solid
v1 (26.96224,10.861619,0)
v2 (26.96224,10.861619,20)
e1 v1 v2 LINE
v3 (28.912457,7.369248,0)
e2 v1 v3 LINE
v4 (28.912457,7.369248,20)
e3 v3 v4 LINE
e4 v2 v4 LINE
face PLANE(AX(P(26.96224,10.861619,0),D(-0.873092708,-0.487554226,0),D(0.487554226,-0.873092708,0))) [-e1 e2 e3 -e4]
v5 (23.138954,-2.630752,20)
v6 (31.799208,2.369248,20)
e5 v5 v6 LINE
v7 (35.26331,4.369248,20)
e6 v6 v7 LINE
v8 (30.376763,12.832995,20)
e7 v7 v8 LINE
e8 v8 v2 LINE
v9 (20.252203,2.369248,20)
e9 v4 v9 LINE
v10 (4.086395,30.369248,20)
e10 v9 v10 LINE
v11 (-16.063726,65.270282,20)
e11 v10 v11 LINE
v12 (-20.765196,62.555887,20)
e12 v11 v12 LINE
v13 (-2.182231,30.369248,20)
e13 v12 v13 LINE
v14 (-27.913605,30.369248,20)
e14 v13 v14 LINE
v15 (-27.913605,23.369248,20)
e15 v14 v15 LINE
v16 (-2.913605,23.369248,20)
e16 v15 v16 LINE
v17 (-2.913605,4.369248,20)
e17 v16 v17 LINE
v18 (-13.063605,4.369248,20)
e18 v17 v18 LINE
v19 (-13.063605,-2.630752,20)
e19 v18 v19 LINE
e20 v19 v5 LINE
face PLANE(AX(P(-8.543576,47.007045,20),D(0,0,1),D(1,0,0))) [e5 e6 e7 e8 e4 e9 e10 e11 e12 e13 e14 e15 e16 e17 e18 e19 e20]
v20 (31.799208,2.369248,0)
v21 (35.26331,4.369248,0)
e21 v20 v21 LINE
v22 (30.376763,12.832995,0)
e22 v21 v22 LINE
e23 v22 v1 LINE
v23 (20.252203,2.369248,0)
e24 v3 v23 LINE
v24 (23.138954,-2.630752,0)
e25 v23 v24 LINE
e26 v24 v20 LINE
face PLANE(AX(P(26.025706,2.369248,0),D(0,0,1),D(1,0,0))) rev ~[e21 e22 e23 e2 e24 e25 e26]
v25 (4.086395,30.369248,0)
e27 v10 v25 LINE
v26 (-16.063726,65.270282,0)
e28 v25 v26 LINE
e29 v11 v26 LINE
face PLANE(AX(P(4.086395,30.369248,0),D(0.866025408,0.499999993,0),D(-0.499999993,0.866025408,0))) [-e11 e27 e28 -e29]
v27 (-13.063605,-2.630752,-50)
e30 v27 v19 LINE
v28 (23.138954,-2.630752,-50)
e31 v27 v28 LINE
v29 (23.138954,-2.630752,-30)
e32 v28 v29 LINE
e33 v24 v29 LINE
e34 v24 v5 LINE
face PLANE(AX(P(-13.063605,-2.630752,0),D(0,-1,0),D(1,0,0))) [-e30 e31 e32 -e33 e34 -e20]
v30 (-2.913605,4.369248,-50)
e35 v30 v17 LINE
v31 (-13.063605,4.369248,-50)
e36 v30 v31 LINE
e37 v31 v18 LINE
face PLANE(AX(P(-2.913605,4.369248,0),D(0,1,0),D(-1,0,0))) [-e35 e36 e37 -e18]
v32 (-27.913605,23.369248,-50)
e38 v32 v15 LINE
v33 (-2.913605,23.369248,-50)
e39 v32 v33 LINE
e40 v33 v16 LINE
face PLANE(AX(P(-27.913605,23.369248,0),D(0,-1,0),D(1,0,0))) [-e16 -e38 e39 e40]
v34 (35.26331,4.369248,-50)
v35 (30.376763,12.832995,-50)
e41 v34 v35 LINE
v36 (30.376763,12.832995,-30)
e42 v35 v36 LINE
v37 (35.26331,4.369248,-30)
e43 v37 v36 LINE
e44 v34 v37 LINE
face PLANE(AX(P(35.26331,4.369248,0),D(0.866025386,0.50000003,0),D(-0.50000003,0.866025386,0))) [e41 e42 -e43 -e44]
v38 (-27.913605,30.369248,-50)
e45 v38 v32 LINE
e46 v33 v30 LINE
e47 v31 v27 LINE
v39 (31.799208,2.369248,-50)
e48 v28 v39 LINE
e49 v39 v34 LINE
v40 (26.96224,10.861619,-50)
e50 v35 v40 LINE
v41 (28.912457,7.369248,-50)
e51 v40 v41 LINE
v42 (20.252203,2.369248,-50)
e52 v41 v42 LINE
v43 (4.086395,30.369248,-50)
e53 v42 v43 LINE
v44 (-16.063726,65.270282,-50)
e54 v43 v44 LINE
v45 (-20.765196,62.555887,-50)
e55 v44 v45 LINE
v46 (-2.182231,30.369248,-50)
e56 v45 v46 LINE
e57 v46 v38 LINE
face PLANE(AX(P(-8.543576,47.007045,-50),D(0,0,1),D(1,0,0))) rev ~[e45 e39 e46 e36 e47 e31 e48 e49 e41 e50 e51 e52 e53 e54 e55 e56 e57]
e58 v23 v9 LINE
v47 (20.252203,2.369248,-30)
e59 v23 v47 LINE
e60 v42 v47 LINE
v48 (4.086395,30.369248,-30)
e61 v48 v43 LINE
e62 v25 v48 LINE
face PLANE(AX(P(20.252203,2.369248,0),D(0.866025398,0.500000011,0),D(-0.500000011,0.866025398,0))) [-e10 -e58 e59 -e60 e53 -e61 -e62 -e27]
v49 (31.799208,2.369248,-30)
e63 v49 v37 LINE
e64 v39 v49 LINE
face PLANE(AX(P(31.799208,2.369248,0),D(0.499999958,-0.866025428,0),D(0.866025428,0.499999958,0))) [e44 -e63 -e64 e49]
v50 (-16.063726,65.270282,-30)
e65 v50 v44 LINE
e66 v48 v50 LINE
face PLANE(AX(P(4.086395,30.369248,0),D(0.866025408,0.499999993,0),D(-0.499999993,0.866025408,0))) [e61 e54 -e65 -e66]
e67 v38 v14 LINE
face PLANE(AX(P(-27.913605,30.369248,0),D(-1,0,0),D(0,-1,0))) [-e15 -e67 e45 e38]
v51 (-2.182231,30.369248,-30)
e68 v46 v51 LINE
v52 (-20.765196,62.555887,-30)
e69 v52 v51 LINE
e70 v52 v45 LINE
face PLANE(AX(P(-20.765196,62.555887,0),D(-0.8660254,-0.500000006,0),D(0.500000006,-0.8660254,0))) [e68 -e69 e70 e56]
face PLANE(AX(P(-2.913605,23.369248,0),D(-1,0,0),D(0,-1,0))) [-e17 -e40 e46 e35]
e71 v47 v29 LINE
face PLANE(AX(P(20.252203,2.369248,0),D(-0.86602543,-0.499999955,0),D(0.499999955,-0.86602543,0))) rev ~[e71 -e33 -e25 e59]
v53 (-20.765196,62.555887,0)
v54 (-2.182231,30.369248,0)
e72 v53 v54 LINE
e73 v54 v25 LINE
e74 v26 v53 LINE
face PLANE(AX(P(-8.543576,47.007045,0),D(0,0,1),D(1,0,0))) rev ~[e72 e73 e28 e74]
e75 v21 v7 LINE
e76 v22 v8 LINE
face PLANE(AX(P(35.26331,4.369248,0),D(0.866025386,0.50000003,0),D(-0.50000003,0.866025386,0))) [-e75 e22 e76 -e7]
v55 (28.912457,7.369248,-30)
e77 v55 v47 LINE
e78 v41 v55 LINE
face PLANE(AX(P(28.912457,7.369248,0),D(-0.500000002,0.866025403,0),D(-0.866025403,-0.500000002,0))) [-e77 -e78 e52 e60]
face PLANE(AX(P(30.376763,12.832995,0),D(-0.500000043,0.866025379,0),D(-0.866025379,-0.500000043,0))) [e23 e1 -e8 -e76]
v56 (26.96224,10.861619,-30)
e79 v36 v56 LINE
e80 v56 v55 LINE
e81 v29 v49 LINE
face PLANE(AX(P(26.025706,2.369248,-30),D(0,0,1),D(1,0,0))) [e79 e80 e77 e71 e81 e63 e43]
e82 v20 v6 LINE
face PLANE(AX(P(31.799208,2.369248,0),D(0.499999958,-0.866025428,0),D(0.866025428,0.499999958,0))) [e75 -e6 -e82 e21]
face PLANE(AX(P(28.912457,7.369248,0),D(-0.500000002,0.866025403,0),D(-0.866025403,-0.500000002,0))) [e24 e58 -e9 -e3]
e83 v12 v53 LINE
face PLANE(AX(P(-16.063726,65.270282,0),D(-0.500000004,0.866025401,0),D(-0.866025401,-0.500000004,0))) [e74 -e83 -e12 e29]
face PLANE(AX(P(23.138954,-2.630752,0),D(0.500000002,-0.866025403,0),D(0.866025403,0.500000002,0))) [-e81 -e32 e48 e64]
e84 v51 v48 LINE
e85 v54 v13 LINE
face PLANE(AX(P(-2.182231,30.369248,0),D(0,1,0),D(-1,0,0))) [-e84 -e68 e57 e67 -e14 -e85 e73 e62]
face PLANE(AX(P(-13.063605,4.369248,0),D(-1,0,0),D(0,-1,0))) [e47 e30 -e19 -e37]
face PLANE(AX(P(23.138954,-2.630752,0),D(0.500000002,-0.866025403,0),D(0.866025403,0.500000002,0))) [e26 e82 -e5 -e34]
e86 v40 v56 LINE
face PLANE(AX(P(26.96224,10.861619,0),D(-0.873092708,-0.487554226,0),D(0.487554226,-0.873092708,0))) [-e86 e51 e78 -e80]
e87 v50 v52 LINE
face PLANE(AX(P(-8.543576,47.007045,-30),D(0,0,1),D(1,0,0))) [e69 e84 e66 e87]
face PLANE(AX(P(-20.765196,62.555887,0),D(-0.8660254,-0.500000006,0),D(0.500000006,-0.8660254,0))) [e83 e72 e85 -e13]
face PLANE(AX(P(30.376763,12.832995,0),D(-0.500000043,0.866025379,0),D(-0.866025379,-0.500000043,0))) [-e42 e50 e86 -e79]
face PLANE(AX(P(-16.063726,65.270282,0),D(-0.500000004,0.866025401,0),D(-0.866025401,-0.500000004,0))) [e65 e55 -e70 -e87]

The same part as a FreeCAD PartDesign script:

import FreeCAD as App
import Part
import Sketcher
from FreeCAD import Vector
Q = App.Units.Quantity

doc = App.newDocument("Part")
params = doc.addObject("Spreadsheet::Sheet", "Params")
for row, (alias, value) in enumerate([
    ("sketch1_width", "25 mm"),
    ("sketch1_height", "7 mm"),
    ("sketch1_height2", "19 mm"),
    ("sketch1_length", "10 mm"),
    ("sketch1_width2", "10.15 mm"),
    ("pad1_length", "20 mm"),
    ("sketch2_width", "25 mm"),
    ("sketch2_height", "7 mm"),
    ("sketch2_height2", "19 mm"),
    ("sketch2_length", "10 mm"),
    ("sketch2_width2", "10.15 mm"),
    ("pad2_length", "50 mm"),
    ("sketch3_length", "10 mm"),
    ("sketch3_length2", "4 mm"),
    ("pocket1_length", "30 mm"),
], start=1):
    params.set(f"A{row}", alias)
    params.set(f"B{row}", "=" + value)
    params.setAlias(f"B{row}", alias)

body = doc.addObject("PartDesign::Body", "Body")

# Sketch on XY plane
sketch1 = doc.addObject("Sketcher::SketchObject", "Sketch")
body.addObject(sketch1)
sketch1.AttachmentSupport = (doc.XY_Plane, [""])
sketch1.MapMode = "FlatFace"
sketch1.addGeometry([
    Part.LineSegment(Vector(-20.8, 62.6, 0), Vector(-2.2, 30.4, 0)),  # 0
    Part.LineSegment(Vector(-2.2, 30.4, 0), Vector(-27.9, 30.4, 0)),  # 1
    Part.LineSegment(Vector(-27.9, 30.4, 0), Vector(-27.9, 23.4, 0)),  # 2
    Part.LineSegment(Vector(-27.9, 23.4, 0), Vector(-2.9, 23.4, 0)),  # 3
    Part.LineSegment(Vector(-2.9, 23.4, 0), Vector(-2.9, 4.4, 0)),  # 4
    Part.LineSegment(Vector(-2.9, 4.4, 0), Vector(-13.1, 4.4, 0)),  # 5
    Part.LineSegment(Vector(-13.1, 4.4, 0), Vector(-13.1, -2.6, 0)),  # 6
    Part.LineSegment(Vector(-13.1, -2.6, 0), Vector(23.1, -2.6, 0)),  # 7
    Part.LineSegment(Vector(23.1, -2.6, 0), Vector(31.8, 2.4, 0)),  # 8
    Part.LineSegment(Vector(31.8, 2.4, 0), Vector(35.3, 4.4, 0)),  # 9
    Part.LineSegment(Vector(35.3, 4.4, 0), Vector(30.4, 12.8, 0)),  # 10
    Part.LineSegment(Vector(30.4, 12.8, 0), Vector(27, 10.9, 0)),  # 11
    Part.LineSegment(Vector(27, 10.9, 0), Vector(28.9, 7.4, 0)),  # 12
    Part.LineSegment(Vector(28.9, 7.4, 0), Vector(20.3, 2.4, 0)),  # 13
    Part.LineSegment(Vector(20.3, 2.4, 0), Vector(4.1, 30.4, 0)),  # 14
    Part.LineSegment(Vector(4.1, 30.4, 0), Vector(-16.1, 65.3, 0)),  # 15
    Part.LineSegment(Vector(-16.1, 65.3, 0), Vector(-20.8, 62.6, 0)),  # 16
], False)
sketch1.addConstraint([
    Sketcher.Constraint("Coincident", 0, 2, 1, 1),
    Sketcher.Constraint("Coincident", 1, 2, 2, 1),
    Sketcher.Constraint("Coincident", 2, 2, 3, 1),
    Sketcher.Constraint("Coincident", 3, 2, 4, 1),
    Sketcher.Constraint("Coincident", 4, 2, 5, 1),
    Sketcher.Constraint("Coincident", 5, 2, 6, 1),
    Sketcher.Constraint("Coincident", 6, 2, 7, 1),
    Sketcher.Constraint("Coincident", 7, 2, 8, 1),
    Sketcher.Constraint("Coincident", 8, 2, 9, 1),
    Sketcher.Constraint("Coincident", 9, 2, 10, 1),
    Sketcher.Constraint("Coincident", 10, 2, 11, 1),
    Sketcher.Constraint("Coincident", 11, 2, 12, 1),
    Sketcher.Constraint("Coincident", 12, 2, 13, 1),
    Sketcher.Constraint("Coincident", 13, 2, 14, 1),
    Sketcher.Constraint("Coincident", 14, 2, 15, 1),
    Sketcher.Constraint("Coincident", 15, 2, 16, 1),
    Sketcher.Constraint("Coincident", 16, 2, 0, 1),
    Sketcher.Constraint("Horizontal", 1),
    Sketcher.Constraint("Vertical", 2),
    Sketcher.Constraint("Horizontal", 3),
    Sketcher.Constraint("Vertical", 4),
    Sketcher.Constraint("Horizontal", 5),
    Sketcher.Constraint("Vertical", 6),
    Sketcher.Constraint("Horizontal", 7),
    Sketcher.Constraint("Perpendicular", 0, 8),
    Sketcher.Constraint("Parallel", 8, 9),
    Sketcher.Constraint("Perpendicular", 9, 10),
    Sketcher.Constraint("Perpendicular", 10, 11),
    Sketcher.Constraint("Parallel", 11, 13),
    Sketcher.Constraint("Perpendicular", 13, 14),
    Sketcher.Constraint("Parallel", 14, 15),
    Sketcher.Constraint("Perpendicular", 15, 16),
    Sketcher.Constraint("Horizontal", 5, 2, 9, 2),
    Sketcher.Constraint("Horizontal", 8, 2, 13, 2),
    Sketcher.Constraint("Horizontal", 1, 2, 14, 2),
    Sketcher.Constraint("Equal", 2, 6),
    Sketcher.Constraint("Equal", 9, 12),
    Sketcher.Constraint("Equal", 8, 13),
    Sketcher.Constraint("DistanceX", 3, 1, 3, 2, 25.0),
    Sketcher.Constraint("DistanceY", 2, 2, 2, 1, 7.0),
    Sketcher.Constraint("DistanceY", 4, 2, 4, 1, 19.0),
    Sketcher.Constraint("Angle", 0, Q("-60 deg")),
    Sketcher.Constraint("Distance", 8, 10.0),
    Sketcher.Constraint("DistanceX", 3, 2, 14, 2, 7.0),
    Sketcher.Constraint("DistanceX", 5, 2, 5, 1, 10.15),
    Sketcher.Constraint("DistanceX", 7, 1, 7, 2, 36.202559),
    Sketcher.Constraint("Distance", 0, 37.16593),
    Sketcher.Constraint("Distance", 11, 3.942752),
    Sketcher.Constraint("Distance", 16, 5.42879),
    Sketcher.Constraint("DistanceX", 0, 2, -1, 1, 2.182231),
    Sketcher.Constraint("DistanceY", -1, 1, 11, 2, 10.861619),
])
sketch1.setExpression("Constraints[38]", "Params.sketch1_width")
sketch1.setExpression("Constraints[39]", "Params.sketch1_height")
sketch1.setExpression("Constraints[40]", "Params.sketch1_height2")
sketch1.setExpression("Constraints[42]", "Params.sketch1_length")
sketch1.setExpression("Constraints[44]", "Params.sketch1_width2")
pad1 = doc.addObject("PartDesign::Pad", "Pad")
body.addObject(pad1)
pad1.Profile = sketch1
pad1.setExpression("Length", "Params.pad1_length")

# Sketch on XY plane
sketch2 = doc.addObject("Sketcher::SketchObject", "Sketch001")
body.addObject(sketch2)
sketch2.AttachmentSupport = (doc.XY_Plane, [""])
sketch2.MapMode = "FlatFace"
sketch2.addGeometry([
    Part.LineSegment(Vector(-20.8, 62.6, 0), Vector(-2.2, 30.4, 0)),  # 0
    Part.LineSegment(Vector(-2.2, 30.4, 0), Vector(-27.9, 30.4, 0)),  # 1
    Part.LineSegment(Vector(-27.9, 30.4, 0), Vector(-27.9, 23.4, 0)),  # 2
    Part.LineSegment(Vector(-27.9, 23.4, 0), Vector(-2.9, 23.4, 0)),  # 3
    Part.LineSegment(Vector(-2.9, 23.4, 0), Vector(-2.9, 4.4, 0)),  # 4
    Part.LineSegment(Vector(-2.9, 4.4, 0), Vector(-13.1, 4.4, 0)),  # 5
    Part.LineSegment(Vector(-13.1, 4.4, 0), Vector(-13.1, -2.6, 0)),  # 6
    Part.LineSegment(Vector(-13.1, -2.6, 0), Vector(23.1, -2.6, 0)),  # 7
    Part.LineSegment(Vector(23.1, -2.6, 0), Vector(31.8, 2.4, 0)),  # 8
    Part.LineSegment(Vector(31.8, 2.4, 0), Vector(35.3, 4.4, 0)),  # 9
    Part.LineSegment(Vector(35.3, 4.4, 0), Vector(30.4, 12.8, 0)),  # 10
    Part.LineSegment(Vector(30.4, 12.8, 0), Vector(27, 10.9, 0)),  # 11
    Part.LineSegment(Vector(27, 10.9, 0), Vector(28.9, 7.4, 0)),  # 12
    Part.LineSegment(Vector(28.9, 7.4, 0), Vector(20.3, 2.4, 0)),  # 13
    Part.LineSegment(Vector(20.3, 2.4, 0), Vector(4.1, 30.4, 0)),  # 14
    Part.LineSegment(Vector(4.1, 30.4, 0), Vector(-16.1, 65.3, 0)),  # 15
    Part.LineSegment(Vector(-16.1, 65.3, 0), Vector(-20.8, 62.6, 0)),  # 16
], False)
sketch2.addConstraint([
    Sketcher.Constraint("Coincident", 0, 2, 1, 1),
    Sketcher.Constraint("Coincident", 1, 2, 2, 1),
    Sketcher.Constraint("Coincident", 2, 2, 3, 1),
    Sketcher.Constraint("Coincident", 3, 2, 4, 1),
    Sketcher.Constraint("Coincident", 4, 2, 5, 1),
    Sketcher.Constraint("Coincident", 5, 2, 6, 1),
    Sketcher.Constraint("Coincident", 6, 2, 7, 1),
    Sketcher.Constraint("Coincident", 7, 2, 8, 1),
    Sketcher.Constraint("Coincident", 8, 2, 9, 1),
    Sketcher.Constraint("Coincident", 9, 2, 10, 1),
    Sketcher.Constraint("Coincident", 10, 2, 11, 1),
    Sketcher.Constraint("Coincident", 11, 2, 12, 1),
    Sketcher.Constraint("Coincident", 12, 2, 13, 1),
    Sketcher.Constraint("Coincident", 13, 2, 14, 1),
    Sketcher.Constraint("Coincident", 14, 2, 15, 1),
    Sketcher.Constraint("Coincident", 15, 2, 16, 1),
    Sketcher.Constraint("Coincident", 16, 2, 0, 1),
    Sketcher.Constraint("Horizontal", 1),
    Sketcher.Constraint("Vertical", 2),
    Sketcher.Constraint("Horizontal", 3),
    Sketcher.Constraint("Vertical", 4),
    Sketcher.Constraint("Horizontal", 5),
    Sketcher.Constraint("Vertical", 6),
    Sketcher.Constraint("Horizontal", 7),
    Sketcher.Constraint("Perpendicular", 0, 8),
    Sketcher.Constraint("Parallel", 8, 9),
    Sketcher.Constraint("Perpendicular", 9, 10),
    Sketcher.Constraint("Perpendicular", 10, 11),
    Sketcher.Constraint("Parallel", 11, 13),
    Sketcher.Constraint("Perpendicular", 13, 14),
    Sketcher.Constraint("Parallel", 14, 15),
    Sketcher.Constraint("Perpendicular", 15, 16),
    Sketcher.Constraint("Horizontal", 5, 2, 9, 2),
    Sketcher.Constraint("Horizontal", 8, 2, 13, 2),
    Sketcher.Constraint("Horizontal", 1, 2, 14, 2),
    Sketcher.Constraint("Equal", 2, 6),
    Sketcher.Constraint("Equal", 9, 12),
    Sketcher.Constraint("Equal", 8, 13),
    Sketcher.Constraint("DistanceX", 3, 1, 3, 2, 25.0),
    Sketcher.Constraint("DistanceY", 2, 2, 2, 1, 7.0),
    Sketcher.Constraint("DistanceY", 4, 2, 4, 1, 19.0),
    Sketcher.Constraint("Angle", 0, Q("-60 deg")),
    Sketcher.Constraint("Distance", 8, 10.0),
    Sketcher.Constraint("DistanceX", 3, 2, 14, 2, 7.0),
    Sketcher.Constraint("DistanceX", 5, 2, 5, 1, 10.15),
    Sketcher.Constraint("DistanceX", 7, 1, 7, 2, 36.202559),
    Sketcher.Constraint("Distance", 0, 37.16593),
    Sketcher.Constraint("Distance", 11, 3.942752),
    Sketcher.Constraint("Distance", 16, 5.42879),
    Sketcher.Constraint("DistanceX", 0, 2, -1, 1, 2.182231),
    Sketcher.Constraint("DistanceY", -1, 1, 11, 2, 10.861619),
])
sketch2.setExpression("Constraints[38]", "Params.sketch2_width")
sketch2.setExpression("Constraints[39]", "Params.sketch2_height")
sketch2.setExpression("Constraints[40]", "Params.sketch2_height2")
sketch2.setExpression("Constraints[42]", "Params.sketch2_length")
sketch2.setExpression("Constraints[44]", "Params.sketch2_width2")
pad2 = doc.addObject("PartDesign::Pad", "Pad001")
body.addObject(pad2)
pad2.Profile = sketch2
pad2.setExpression("Length", "Params.pad2_length")
pad2.Reversed = True

# Sketch on XY plane
sketch3 = doc.addObject("Sketcher::SketchObject", "Sketch002")
body.addObject(sketch3)
sketch3.AttachmentSupport = (doc.XY_Plane, [""])
sketch3.MapMode = "FlatFace"
sketch3.addGeometry([
    Part.LineSegment(Vector(-20.8, 62.6, 0), Vector(-2.2, 30.4, 0)),  # 0
    Part.LineSegment(Vector(-2.2, 30.4, 0), Vector(4.1, 30.4, 0)),  # 1
    Part.LineSegment(Vector(4.1, 30.4, 0), Vector(-16.1, 65.3, 0)),  # 2
    Part.LineSegment(Vector(-16.1, 65.3, 0), Vector(-20.8, 62.6, 0)),  # 3
    Part.LineSegment(Vector(28.9, 7.4, 0), Vector(20.3, 2.4, 0)),  # 4
    Part.LineSegment(Vector(20.3, 2.4, 0), Vector(23.1, -2.6, 0)),  # 5
    Part.LineSegment(Vector(23.1, -2.6, 0), Vector(31.8, 2.4, 0)),  # 6
    Part.LineSegment(Vector(31.8, 2.4, 0), Vector(35.3, 4.4, 0)),  # 7
    Part.LineSegment(Vector(35.3, 4.4, 0), Vector(30.4, 12.8, 0)),  # 8
    Part.LineSegment(Vector(30.4, 12.8, 0), Vector(27, 10.9, 0)),  # 9
    Part.LineSegment(Vector(27, 10.9, 0), Vector(28.9, 7.4, 0)),  # 10
], False)
sketch3.addConstraint([
    Sketcher.Constraint("Coincident", 0, 2, 1, 1),
    Sketcher.Constraint("Coincident", 1, 2, 2, 1),
    Sketcher.Constraint("Coincident", 2, 2, 3, 1),
    Sketcher.Constraint("Coincident", 3, 2, 0, 1),
    Sketcher.Constraint("Coincident", 4, 2, 5, 1),
    Sketcher.Constraint("Coincident", 5, 2, 6, 1),
    Sketcher.Constraint("Coincident", 6, 2, 7, 1),
    Sketcher.Constraint("Coincident", 7, 2, 8, 1),
    Sketcher.Constraint("Coincident", 8, 2, 9, 1),
    Sketcher.Constraint("Coincident", 9, 2, 10, 1),
    Sketcher.Constraint("Coincident", 10, 2, 4, 1),
    Sketcher.Constraint("Horizontal", 1),
    Sketcher.Constraint("Parallel", 0, 2),
    Sketcher.Constraint("Perpendicular", 2, 3),
    Sketcher.Constraint("Parallel", 3, 4),
    Sketcher.Constraint("Perpendicular", 4, 5),
    Sketcher.Constraint("Perpendicular", 5, 6),
    Sketcher.Constraint("Parallel", 6, 7),
    Sketcher.Constraint("Perpendicular", 7, 8),
    Sketcher.Constraint("Perpendicular", 8, 9),
    Sketcher.Constraint("Horizontal", 4, 2, 6, 2),
    Sketcher.Constraint("Equal", 4, 6),
    Sketcher.Constraint("Equal", 7, 10),
    Sketcher.Constraint("Angle", 0, Q("-60 deg")),
    Sketcher.Constraint("Distance", 4, 10.0),
    Sketcher.Constraint("Distance", 7, 4.0),
    Sketcher.Constraint("DistanceY", 4, 2, 1, 2, 28.0),
    Sketcher.Constraint("DistanceX", 3, 2, 4, 2, 41.017399),
    Sketcher.Constraint("Distance", 0, 37.16593),
    Sketcher.Constraint("Distance", 3, 5.42879),
    Sketcher.Constraint("Distance", 9, 3.942752),
    Sketcher.Constraint("DistanceX", 0, 2, -1, 1, 2.182231),
    Sketcher.Constraint("DistanceY", -1, 1, 2, 2, 65.270282),
])
sketch3.setExpression("Constraints[24]", "Params.sketch3_length")
sketch3.setExpression("Constraints[25]", "Params.sketch3_length2")
pocket1 = doc.addObject("PartDesign::Pocket", "Pocket")
body.addObject(pocket1)
pocket1.Profile = sketch3
pocket1.setExpression("Length", "Params.pocket1_length")

doc.recompute()
